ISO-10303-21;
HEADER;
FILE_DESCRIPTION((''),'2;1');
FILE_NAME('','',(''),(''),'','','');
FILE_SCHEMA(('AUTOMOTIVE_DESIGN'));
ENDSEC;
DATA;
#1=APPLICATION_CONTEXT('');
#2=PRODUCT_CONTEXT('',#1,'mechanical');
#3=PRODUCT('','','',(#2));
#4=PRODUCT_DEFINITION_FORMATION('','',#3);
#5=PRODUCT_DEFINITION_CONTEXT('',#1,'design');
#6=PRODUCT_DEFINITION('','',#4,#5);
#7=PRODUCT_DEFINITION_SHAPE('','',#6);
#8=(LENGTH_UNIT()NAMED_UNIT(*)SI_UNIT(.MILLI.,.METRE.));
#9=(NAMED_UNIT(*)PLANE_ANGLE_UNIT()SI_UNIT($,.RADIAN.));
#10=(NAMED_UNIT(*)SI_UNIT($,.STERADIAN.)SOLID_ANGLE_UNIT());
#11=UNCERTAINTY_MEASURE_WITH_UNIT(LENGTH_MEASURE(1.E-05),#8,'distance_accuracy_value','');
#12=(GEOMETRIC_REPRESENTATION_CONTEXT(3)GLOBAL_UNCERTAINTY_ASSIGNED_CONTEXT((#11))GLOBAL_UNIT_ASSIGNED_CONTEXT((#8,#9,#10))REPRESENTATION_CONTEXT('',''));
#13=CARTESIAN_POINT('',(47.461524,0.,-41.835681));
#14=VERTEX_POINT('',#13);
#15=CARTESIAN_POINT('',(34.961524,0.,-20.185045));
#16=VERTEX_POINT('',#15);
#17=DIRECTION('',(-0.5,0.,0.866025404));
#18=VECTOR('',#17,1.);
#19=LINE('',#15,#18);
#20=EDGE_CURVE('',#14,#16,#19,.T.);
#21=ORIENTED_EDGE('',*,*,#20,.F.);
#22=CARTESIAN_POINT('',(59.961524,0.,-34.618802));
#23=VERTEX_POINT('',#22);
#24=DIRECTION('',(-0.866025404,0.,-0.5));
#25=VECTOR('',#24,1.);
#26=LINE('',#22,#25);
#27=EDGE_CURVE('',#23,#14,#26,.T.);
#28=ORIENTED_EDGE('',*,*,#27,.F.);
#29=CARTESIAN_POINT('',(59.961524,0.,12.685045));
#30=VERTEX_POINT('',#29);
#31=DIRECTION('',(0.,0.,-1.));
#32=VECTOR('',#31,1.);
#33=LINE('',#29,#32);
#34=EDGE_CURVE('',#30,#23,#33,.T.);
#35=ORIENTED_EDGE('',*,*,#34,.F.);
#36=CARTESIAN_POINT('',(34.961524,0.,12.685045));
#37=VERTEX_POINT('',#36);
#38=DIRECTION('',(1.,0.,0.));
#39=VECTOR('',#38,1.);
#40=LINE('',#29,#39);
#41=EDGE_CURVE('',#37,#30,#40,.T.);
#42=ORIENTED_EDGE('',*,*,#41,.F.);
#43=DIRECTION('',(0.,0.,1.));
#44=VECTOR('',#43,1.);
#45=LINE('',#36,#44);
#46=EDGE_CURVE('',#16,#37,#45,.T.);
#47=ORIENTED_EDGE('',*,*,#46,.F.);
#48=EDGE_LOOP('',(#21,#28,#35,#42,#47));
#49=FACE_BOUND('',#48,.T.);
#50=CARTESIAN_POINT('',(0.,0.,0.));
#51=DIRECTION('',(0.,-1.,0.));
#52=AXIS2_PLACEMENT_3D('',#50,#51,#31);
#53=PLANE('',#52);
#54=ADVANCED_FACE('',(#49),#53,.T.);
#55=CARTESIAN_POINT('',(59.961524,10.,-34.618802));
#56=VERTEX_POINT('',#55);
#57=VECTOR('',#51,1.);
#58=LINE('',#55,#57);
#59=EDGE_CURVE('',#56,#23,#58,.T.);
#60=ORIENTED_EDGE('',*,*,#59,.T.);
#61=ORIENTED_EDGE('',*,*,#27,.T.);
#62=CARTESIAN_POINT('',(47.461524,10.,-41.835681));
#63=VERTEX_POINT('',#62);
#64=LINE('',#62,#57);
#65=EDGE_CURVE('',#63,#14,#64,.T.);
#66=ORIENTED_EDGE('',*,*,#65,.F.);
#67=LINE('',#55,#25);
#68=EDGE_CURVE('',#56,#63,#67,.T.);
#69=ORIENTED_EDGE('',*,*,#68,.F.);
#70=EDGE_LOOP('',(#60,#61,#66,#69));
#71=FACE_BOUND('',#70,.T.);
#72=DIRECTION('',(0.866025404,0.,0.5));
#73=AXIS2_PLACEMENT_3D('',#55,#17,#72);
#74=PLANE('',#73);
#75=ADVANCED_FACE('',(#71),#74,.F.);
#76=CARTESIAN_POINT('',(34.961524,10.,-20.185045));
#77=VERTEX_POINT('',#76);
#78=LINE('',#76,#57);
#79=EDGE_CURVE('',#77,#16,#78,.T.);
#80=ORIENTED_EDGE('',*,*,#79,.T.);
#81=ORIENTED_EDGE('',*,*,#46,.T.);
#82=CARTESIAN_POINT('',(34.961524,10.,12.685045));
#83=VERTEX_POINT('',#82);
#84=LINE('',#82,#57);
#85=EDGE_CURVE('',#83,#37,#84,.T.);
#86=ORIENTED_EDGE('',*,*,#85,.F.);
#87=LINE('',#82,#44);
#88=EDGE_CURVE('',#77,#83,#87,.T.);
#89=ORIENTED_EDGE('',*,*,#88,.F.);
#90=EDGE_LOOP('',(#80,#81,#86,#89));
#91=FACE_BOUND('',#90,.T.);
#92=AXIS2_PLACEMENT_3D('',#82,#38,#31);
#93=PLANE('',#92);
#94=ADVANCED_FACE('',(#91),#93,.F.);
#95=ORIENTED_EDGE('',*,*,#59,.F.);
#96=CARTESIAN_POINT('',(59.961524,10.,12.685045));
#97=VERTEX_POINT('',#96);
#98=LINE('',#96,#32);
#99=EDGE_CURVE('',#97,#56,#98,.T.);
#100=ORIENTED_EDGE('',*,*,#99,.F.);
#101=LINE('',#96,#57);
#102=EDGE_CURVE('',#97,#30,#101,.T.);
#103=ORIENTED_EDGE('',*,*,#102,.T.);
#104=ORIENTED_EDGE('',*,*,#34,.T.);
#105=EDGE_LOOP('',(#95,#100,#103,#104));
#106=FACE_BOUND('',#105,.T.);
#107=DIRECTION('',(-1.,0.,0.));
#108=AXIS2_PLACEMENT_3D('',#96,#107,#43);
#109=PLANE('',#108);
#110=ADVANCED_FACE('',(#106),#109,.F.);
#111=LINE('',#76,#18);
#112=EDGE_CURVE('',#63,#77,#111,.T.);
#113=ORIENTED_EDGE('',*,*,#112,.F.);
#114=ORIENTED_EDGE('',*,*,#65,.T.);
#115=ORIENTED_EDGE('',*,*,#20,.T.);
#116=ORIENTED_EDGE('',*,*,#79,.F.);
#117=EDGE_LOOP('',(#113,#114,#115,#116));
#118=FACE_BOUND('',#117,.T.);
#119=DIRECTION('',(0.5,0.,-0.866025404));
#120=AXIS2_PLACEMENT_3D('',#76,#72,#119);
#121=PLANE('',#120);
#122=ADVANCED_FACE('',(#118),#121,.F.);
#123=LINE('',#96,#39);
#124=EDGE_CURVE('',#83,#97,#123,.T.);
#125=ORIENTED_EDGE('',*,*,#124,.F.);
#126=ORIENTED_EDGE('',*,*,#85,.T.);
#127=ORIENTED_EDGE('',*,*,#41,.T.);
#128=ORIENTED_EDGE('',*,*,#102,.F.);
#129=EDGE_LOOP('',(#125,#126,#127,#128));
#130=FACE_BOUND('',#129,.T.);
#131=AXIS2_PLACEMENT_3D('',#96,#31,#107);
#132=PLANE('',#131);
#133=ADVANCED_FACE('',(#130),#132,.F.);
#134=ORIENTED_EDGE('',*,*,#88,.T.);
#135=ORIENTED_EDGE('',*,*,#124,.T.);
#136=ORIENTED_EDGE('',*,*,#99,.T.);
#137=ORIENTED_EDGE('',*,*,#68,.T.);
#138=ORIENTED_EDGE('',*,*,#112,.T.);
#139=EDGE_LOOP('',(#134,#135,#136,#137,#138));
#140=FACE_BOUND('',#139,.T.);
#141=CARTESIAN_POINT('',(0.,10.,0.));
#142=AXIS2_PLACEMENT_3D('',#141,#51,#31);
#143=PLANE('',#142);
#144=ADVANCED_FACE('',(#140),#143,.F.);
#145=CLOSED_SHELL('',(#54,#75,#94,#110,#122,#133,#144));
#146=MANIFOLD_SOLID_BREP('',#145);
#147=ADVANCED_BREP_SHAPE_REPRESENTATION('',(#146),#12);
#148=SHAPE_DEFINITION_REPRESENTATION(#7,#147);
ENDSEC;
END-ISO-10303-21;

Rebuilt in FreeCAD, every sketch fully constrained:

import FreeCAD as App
import Part
import Sketcher

V = App.Vector
Q = App.Units.Quantity


def add_polygon(sketch, points):
    """Adds a closed chain of lines whose ends are joined by coincident constraints."""
    first, n = sketch.GeometryCount, len(points)
    for a, b in zip(points, points[1:] + points[:1]):
        sketch.addGeometry(Part.LineSegment(App.Vector(*a, 0), App.Vector(*b, 0)), False)
    for i in range(n):
        sketch.addConstraint(Sketcher.Constraint("Coincident", first + i, 2, first + (i + 1) % n, 1))

doc = App.newDocument("Part")
body = doc.addObject("PartDesign::Body", "Body")

# Sketch on XZ plane
sketch1 = doc.addObject("Sketcher::SketchObject", "Sketch")
body.addObject(sketch1)
sketch1.AttachmentSupport = (doc.XZ_Plane, [""])
sketch1.MapMode = "FlatFace"
add_polygon(sketch1, [(60, 13), (60, -35), (47, -42), (35, -20), (35, 13)])  # lines 0-4
sketch1.addConstraint(Sketcher.Constraint("Vertical", 0))
sketch1.addConstraint(Sketcher.Constraint("Vertical", 3))
sketch1.addConstraint(Sketcher.Constraint("Horizontal", 4))
sketch1.addConstraint(Sketcher.Constraint("Perpendicular", 1, 2))
sketch1.addConstraint(Sketcher.Constraint("DistanceX", 4, 1, 4, 2, 25.0))
sketch1.addConstraint(Sketcher.Constraint("Angle", 1, Q("-150 deg")))
sketch1.addConstraint(Sketcher.Constraint("Distance", 2, 25.0))
sketch1.addConstraint(Sketcher.Constraint("DistanceY", 3, 1, 3, 2, 32.870091))
sketch1.addConstraint(Sketcher.Constraint("DistanceY", 1, 2, -1, 1, 41.835681))
sketch1.addConstraint(Sketcher.Constraint("DistanceX", -1, 1, 0, 2, 59.961524))
pad1 = doc.addObject("PartDesign::Pad", "Pad")
body.addObject(pad1)
pad1.Profile = sketch1
pad1.Length = 10
pad1.Reversed = True

doc.recompute()
